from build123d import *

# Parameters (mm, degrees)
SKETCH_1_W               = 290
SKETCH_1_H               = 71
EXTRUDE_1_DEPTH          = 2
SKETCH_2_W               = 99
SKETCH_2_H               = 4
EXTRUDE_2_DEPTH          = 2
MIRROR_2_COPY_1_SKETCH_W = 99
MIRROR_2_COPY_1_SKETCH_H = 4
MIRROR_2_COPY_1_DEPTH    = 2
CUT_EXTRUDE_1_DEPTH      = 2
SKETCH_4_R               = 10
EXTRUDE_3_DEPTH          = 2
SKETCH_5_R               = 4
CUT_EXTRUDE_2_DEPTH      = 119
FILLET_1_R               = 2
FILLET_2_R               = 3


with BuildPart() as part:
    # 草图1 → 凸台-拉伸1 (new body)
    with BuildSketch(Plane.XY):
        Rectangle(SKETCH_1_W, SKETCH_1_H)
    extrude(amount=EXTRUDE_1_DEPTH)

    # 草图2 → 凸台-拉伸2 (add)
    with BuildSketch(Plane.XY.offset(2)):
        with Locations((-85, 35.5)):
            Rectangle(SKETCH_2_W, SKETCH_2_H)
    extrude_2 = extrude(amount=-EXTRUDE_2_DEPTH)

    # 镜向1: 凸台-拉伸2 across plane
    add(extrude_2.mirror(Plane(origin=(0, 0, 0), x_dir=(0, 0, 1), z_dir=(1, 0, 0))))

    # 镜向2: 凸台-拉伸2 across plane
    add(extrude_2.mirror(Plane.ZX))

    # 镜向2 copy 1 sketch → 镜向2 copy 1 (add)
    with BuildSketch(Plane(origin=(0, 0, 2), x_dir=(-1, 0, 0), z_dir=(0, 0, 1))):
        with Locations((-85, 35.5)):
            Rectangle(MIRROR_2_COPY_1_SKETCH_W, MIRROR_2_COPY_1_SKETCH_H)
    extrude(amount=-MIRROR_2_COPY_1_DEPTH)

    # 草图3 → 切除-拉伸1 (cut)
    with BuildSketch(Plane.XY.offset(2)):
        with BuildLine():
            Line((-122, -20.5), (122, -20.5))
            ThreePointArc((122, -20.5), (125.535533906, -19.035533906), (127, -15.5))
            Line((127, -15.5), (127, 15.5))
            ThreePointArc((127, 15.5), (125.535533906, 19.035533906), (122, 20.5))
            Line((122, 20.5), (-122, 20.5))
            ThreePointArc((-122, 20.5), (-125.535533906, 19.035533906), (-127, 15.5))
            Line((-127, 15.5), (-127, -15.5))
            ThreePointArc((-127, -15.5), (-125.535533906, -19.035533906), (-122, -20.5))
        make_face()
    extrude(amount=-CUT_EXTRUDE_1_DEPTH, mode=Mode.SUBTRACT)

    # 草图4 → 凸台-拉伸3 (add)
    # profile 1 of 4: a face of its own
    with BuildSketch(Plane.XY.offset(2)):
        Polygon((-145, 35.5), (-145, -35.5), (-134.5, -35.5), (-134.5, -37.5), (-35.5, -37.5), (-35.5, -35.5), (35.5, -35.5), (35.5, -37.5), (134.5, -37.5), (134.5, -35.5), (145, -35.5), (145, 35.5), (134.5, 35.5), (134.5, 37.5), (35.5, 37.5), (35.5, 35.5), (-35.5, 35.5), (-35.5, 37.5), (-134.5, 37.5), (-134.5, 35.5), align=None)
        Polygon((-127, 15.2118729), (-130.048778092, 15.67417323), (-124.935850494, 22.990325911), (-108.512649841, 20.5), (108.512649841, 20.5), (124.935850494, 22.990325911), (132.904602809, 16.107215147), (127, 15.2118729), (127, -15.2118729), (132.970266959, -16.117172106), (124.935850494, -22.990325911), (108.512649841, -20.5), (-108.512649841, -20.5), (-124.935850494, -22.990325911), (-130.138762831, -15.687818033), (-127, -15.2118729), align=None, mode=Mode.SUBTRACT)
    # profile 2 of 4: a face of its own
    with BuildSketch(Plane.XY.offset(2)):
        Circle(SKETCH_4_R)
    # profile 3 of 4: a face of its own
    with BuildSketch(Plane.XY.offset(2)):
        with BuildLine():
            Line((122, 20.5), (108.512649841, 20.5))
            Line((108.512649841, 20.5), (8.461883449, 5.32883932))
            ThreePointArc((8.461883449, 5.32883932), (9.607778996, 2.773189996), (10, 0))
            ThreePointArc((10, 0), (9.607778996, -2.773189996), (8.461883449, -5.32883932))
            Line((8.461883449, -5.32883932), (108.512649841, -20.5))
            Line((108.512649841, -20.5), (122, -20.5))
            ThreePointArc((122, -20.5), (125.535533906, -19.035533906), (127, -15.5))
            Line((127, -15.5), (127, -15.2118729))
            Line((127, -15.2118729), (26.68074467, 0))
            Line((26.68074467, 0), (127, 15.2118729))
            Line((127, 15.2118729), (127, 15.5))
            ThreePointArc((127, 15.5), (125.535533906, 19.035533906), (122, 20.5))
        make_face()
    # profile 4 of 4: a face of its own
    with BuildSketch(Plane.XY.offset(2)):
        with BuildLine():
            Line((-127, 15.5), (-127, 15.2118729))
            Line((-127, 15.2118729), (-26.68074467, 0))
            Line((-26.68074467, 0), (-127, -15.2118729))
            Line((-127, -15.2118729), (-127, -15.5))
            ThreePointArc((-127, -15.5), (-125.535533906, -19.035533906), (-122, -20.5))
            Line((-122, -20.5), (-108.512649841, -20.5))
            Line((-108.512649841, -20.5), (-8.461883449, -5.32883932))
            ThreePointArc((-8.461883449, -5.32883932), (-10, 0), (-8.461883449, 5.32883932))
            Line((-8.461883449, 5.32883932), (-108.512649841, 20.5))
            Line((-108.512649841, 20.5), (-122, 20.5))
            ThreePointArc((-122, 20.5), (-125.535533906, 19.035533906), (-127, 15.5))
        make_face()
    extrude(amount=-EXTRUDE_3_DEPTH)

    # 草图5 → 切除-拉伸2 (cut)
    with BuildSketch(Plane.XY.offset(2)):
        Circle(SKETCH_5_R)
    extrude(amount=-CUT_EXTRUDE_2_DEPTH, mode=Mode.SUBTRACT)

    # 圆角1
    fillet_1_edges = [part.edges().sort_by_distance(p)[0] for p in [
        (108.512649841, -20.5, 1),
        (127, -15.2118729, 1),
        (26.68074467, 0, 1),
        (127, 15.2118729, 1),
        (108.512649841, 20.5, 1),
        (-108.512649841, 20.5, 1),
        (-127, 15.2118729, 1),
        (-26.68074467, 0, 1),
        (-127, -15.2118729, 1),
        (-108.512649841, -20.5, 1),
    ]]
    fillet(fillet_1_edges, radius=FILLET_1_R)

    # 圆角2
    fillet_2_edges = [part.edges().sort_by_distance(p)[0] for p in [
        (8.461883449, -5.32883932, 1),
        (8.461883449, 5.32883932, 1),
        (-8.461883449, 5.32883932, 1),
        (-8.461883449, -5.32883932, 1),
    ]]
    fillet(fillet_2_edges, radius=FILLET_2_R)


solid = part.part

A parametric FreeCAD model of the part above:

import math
import FreeCAD as App
import Part
import Sketcher


def edges_at(feature, points):
    """Names of the edges that pass closest to the given points."""
    edges = feature.Shape.Edges
    near = lambda p: min(range(len(edges)), key=lambda i: edges[i].distToShape(Part.Vertex(*p))[0])
    return sorted({f"Edge{near(p) + 1}" for p in points})


def add_polygon(sketch, points):
    """Adds a closed chain of lines whose ends are joined by coincident constraints."""
    first, n = sketch.GeometryCount, len(points)
    for a, b in zip(points, points[1:] + points[:1]):
        sketch.addGeometry(Part.LineSegment(App.Vector(*a, 0), App.Vector(*b, 0)), False)
    for i in range(n):
        sketch.addConstraint(Sketcher.Constraint("Coincident", first + i, 2, first + (i + 1) % n, 1))

doc = App.newDocument("Part")
body = doc.addObject("PartDesign::Body", "Body")

sketch1 = body.newObject("Sketcher::SketchObject", "Sketch")
sketch1.AttachmentSupport = (doc.getObject("XY_Plane"), [""])
sketch1.MapMode = "FlatFace"
add_polygon(sketch1, [(-145, 35.5), (-145, -35.5), (145, -35.5), (145, 35.5)])
sketch1.addConstraint(Sketcher.Constraint("Vertical", 0))
sketch1.addConstraint(Sketcher.Constraint("Horizontal", 1))
sketch1.addConstraint(Sketcher.Constraint("Vertical", 2))
sketch1.addConstraint(Sketcher.Constraint("Horizontal", 3))
sketch1.addConstraint(Sketcher.Constraint("Symmetric", 0, 2, 2, 2, -1, 1))
sketch1.addConstraint(Sketcher.Constraint("DistanceX", 1, 1, 1, 2, 290.0))
sketch1.addConstraint(Sketcher.Constraint("DistanceY", 0, 2, 0, 1, 71.0))
pad1 = body.newObject("PartDesign::Pad", "Pad")
pad1.Profile = sketch1
pad1.Length = 2

sketch2 = body.newObject("Sketcher::SketchObject", "Sketch001")
sketch2.AttachmentSupport = (doc.getObject("XY_Plane"), [""])
sketch2.MapMode = "FlatFace"
sketch2.AttachmentOffset = App.Placement(App.Vector(0, 0, 2), App.Rotation())
add_polygon(sketch2, [(-134.5, 37.5), (-134.5, 33.5), (-35.5, 33.5), (-35.5, 37.5)])
sketch2.addConstraint(Sketcher.Constraint("Vertical", 0))
sketch2.addConstraint(Sketcher.Constraint("Horizontal", 1))
sketch2.addConstraint(Sketcher.Constraint("Vertical", 2))
sketch2.addConstraint(Sketcher.Constraint("Horizontal", 3))
sketch2.addConstraint(Sketcher.Constraint("DistanceX", 1, 1, 1, 2, 99.0))
sketch2.addConstraint(Sketcher.Constraint("DistanceY", 0, 2, 0, 1, 4.0))
sketch2.addConstraint(Sketcher.Constraint("DistanceX", 0, 2, -1, 1, 134.5))
sketch2.addConstraint(Sketcher.Constraint("DistanceY", -1, 1, 0, 2, 33.5))
pad2 = body.newObject("PartDesign::Pad", "Pad001")
pad2.Profile = sketch2
pad2.Length = 2
pad2.Reversed = True
doc.recompute()

mirrored = body.newObject("PartDesign::Mirrored", "Mirrored")
mirrored.Originals = [pad2]
mirrored.MirrorPlane = (doc.getObject("YZ_Plane"), [""])
body.Tip = mirrored
doc.recompute()

mirrored2 = body.newObject("PartDesign::Mirrored", "Mirrored001")
mirrored2.Originals = [pad2]
mirrored2.MirrorPlane = (doc.getObject("XZ_Plane"), [""])
body.Tip = mirrored2

sketch3 = body.newObject("Sketcher::SketchObject", "Sketch002")
sketch3.AttachmentSupport = (doc.getObject("XY_Plane"), [""])
sketch3.MapMode = "FlatFace"
sketch3.AttachmentOffset = App.Placement(App.Vector(0, 0, 2), App.Rotation())
add_polygon(sketch3, [(134.5, -37.5), (134.5, -33.5), (35.5, -33.5), (35.5, -37.5)])
sketch3.addConstraint(Sketcher.Constraint("Vertical", 0))
sketch3.addConstraint(Sketcher.Constraint("Horizontal", 1))
sketch3.addConstraint(Sketcher.Constraint("Vertical", 2))
sketch3.addConstraint(Sketcher.Constraint("Horizontal", 3))
sketch3.addConstraint(Sketcher.Constraint("DistanceX", 1, 2, 1, 1, 99.0))
sketch3.addConstraint(Sketcher.Constraint("DistanceY", 0, 1, 0, 2, 4.0))
sketch3.addConstraint(Sketcher.Constraint("DistanceX", -1, 1, 0, 2, 134.5))
sketch3.addConstraint(Sketcher.Constraint("DistanceY", 0, 2, -1, 1, 33.5))
pad3 = body.newObject("PartDesign::Pad", "Pad002")
pad3.Profile = sketch3
pad3.Length = 2
pad3.Reversed = True

sketch4 = body.newObject("Sketcher::SketchObject", "Sketch003")
sketch4.AttachmentSupport = (doc.getObject("XY_Plane"), [""])
sketch4.MapMode = "FlatFace"
sketch4.AttachmentOffset = App.Placement(App.Vector(0, 0, 2), App.Rotation())
sketch4.addGeometry(Part.LineSegment(App.Vector(-122, -20.5, 0), App.Vector(122, -20.5, 0)), False)
sketch4.addGeometry(Part.ArcOfCircle(Part.Circle(App.Vector(122, -15.5, 0), App.Vector(0, 0, 1), 5), math.radians(-90), math.radians(0)), False)
sketch4.addGeometry(Part.LineSegment(App.Vector(127, -15.5, 0), App.Vector(127, 15.5, 0)), False)
sketch4.addGeometry(Part.ArcOfCircle(Part.Circle(App.Vector(122, 15.5, 0), App.Vector(0, 0, 1), 5), math.radians(0), math.radians(90)), False)
sketch4.addGeometry(Part.LineSegment(App.Vector(122, 20.5, 0), App.Vector(-122, 20.5, 0)), False)
sketch4.addGeometry(Part.ArcOfCircle(Part.Circle(App.Vector(-122, 15.5, 0), App.Vector(0, 0, 1), 5), math.radians(90), math.radians(180)), False)
sketch4.addGeometry(Part.LineSegment(App.Vector(-127, 15.5, 0), App.Vector(-127, -15.5, 0)), False)
sketch4.addGeometry(Part.ArcOfCircle(Part.Circle(App.Vector(-122, -15.5, 0), App.Vector(0, 0, 1), 5), math.radians(180), math.radians(270)), False)
sketch4.addConstraint(Sketcher.Constraint("Tangent", 0, 2, 1, 1))
sketch4.addConstraint(Sketcher.Constraint("Tangent", 1, 2, 2, 1))
sketch4.addConstraint(Sketcher.Constraint("Tangent", 2, 2, 3, 1))
sketch4.addConstraint(Sketcher.Constraint("Tangent", 3, 2, 4, 1))
sketch4.addConstraint(Sketcher.Constraint("Tangent", 4, 2, 5, 1))
sketch4.addConstraint(Sketcher.Constraint("Tangent", 5, 2, 6, 1))
sketch4.addConstraint(Sketcher.Constraint("Tangent", 6, 2, 7, 1))
sketch4.addConstraint(Sketcher.Constraint("Tangent", 7, 2, 0, 1))
sketch4.addConstraint(Sketcher.Constraint("Horizontal", 0))
sketch4.addConstraint(Sketcher.Constraint("Vertical", 2))
sketch4.addConstraint(Sketcher.Constraint("Horizontal", 4))
sketch4.addConstraint(Sketcher.Constraint("Vertical", 6))
sketch4.addConstraint(Sketcher.Constraint("Equal", 1, 3))
sketch4.addConstraint(Sketcher.Constraint("Equal", 3, 5))
sketch4.addConstraint(Sketcher.Constraint("Equal", 5, 7))
sketch4.addConstraint(Sketcher.Constraint("Symmetric", 1, 3, 5, 3, -1, 1))
sketch4.addConstraint(Sketcher.Constraint("Radius", 1, 5.0))
sketch4.addConstraint(Sketcher.Constraint("DistanceX", 0, 1, 0, 2, 244.0))
sketch4.addConstraint(Sketcher.Constraint("DistanceY", 2, 1, 2, 2, 31.0))
pocket1 = body.newObject("PartDesign::Pocket", "Pocket")
pocket1.Profile = sketch4
pocket1.Length = 2

sketch5 = body.newObject("Sketcher::SketchObject", "Sketch004")
sketch5.AttachmentSupport = (doc.getObject("XY_Plane"), [""])
sketch5.MapMode = "FlatFace"
sketch5.AttachmentOffset = App.Placement(App.Vector(0, 0, 2), App.Rotation())
add_polygon(sketch5, [(-145, 35.5), (-145, -35.5), (-134.5, -35.5), (-134.5, -37.5), (-35.5, -37.5), (-35.5, -35.5), (35.5, -35.5), (35.5, -37.5), (134.5, -37.5), (134.5, -35.5), (145, -35.5), (145, 35.5), (134.5, 35.5), (134.5, 37.5), (35.5, 37.5), (35.5, 35.5), (-35.5, 35.5), (-35.5, 37.5), (-134.5, 37.5), (-134.5, 35.5)])
add_polygon(sketch5, [(-127, -15.211873), (-127, 15.211873), (-130.048778, 15.674173), (-124.93585, 22.990326), (-108.51265, 20.5), (108.51265, 20.5), (124.93585, 22.990326), (132.904603, 16.107215), (127, 15.211873), (127, -15.211873), (132.970267, -16.117172), (124.93585, -22.990326), (108.51265, -20.5), (-108.51265, -20.5), (-124.93585, -22.990326), (-130.138763, -15.687818)])
sketch5.addGeometry(Part.ArcOfCircle(Part.Circle(App.Vector(0, 0, 0), App.Vector(0, 0, 1), 10), math.radians(32.200518), math.radians(147.799482)), False)
sketch5.addGeometry(Part.LineSegment(App.Vector(-8.461883, 5.328839, 0), App.Vector(-108.51265, 20.5, 0)), False)
sketch5.addGeometry(Part.LineSegment(App.Vector(-108.51265, 20.5, 0), App.Vector(-122, 20.5, 0)), False)
sketch5.addGeometry(Part.ArcOfCircle(Part.Circle(App.Vector(-122, 15.5, 0), App.Vector(0, 0, 1), 5), math.radians(90), math.radians(180)), False)
sketch5.addGeometry(Part.LineSegment(App.Vector(-127, 15.5, 0), App.Vector(-127, 15.211873, 0)), False)
sketch5.addGeometry(Part.LineSegment(App.Vector(-127, 15.211873, 0), App.Vector(-26.680745, 0, 0)), False)
sketch5.addGeometry(Part.LineSegment(App.Vector(-26.680745, 0, 0), App.Vector(-127, -15.211873, 0)), False)
sketch5.addGeometry(Part.LineSegment(App.Vector(-127, -15.211873, 0), App.Vector(-127, -15.5, 0)), False)
sketch5.addGeometry(Part.ArcOfCircle(Part.Circle(App.Vector(-122, -15.5, 0), App.Vector(0, 0, 1), 5), math.radians(180), math.radians(270)), False)
sketch5.addGeometry(Part.LineSegment(App.Vector(-122, -20.5, 0), App.Vector(-108.51265, -20.5, 0)), False)
sketch5.addGeometry(Part.LineSegment(App.Vector(-108.51265, -20.5, 0), App.Vector(-8.461883, -5.328839, 0)), False)
sketch5.addGeometry(Part.ArcOfCircle(Part.Circle(App.Vector(0, 0, 0), App.Vector(0, 0, 1), 10), math.radians(-147.799482), math.radians(-32.200518)), False)
sketch5.addGeometry(Part.LineSegment(App.Vector(8.461883, -5.328839, 0), App.Vector(108.51265, -20.5, 0)), False)
sketch5.addGeometry(Part.LineSegment(App.Vector(108.51265, -20.5, 0), App.Vector(122, -20.5, 0)), False)
sketch5.addGeometry(Part.ArcOfCircle(Part.Circle(App.Vector(122, -15.5, 0), App.Vector(0, 0, 1), 5), math.radians(-90), math.radians(0)), False)
sketch5.addGeometry(Part.LineSegment(App.Vector(127, -15.5, 0), App.Vector(127, -15.211873, 0)), False)
sketch5.addGeometry(Part.LineSegment(App.Vector(127, -15.211873, 0), App.Vector(26.680745, 0, 0)), False)
sketch5.addGeometry(Part.LineSegment(App.Vector(26.680745, 0, 0), App.Vector(127, 15.211873, 0)), False)
sketch5.addGeometry(Part.LineSegment(App.Vector(127, 15.211873, 0), App.Vector(127, 15.5, 0)), False)
sketch5.addGeometry(Part.ArcOfCircle(Part.Circle(App.Vector(122, 15.5, 0), App.Vector(0, 0, 1), 5), math.radians(0), math.radians(90)), False)
sketch5.addGeometry(Part.LineSegment(App.Vector(122, 20.5, 0), App.Vector(108.51265, 20.5, 0)), False)
sketch5.addGeometry(Part.LineSegment(App.Vector(108.51265, 20.5, 0), App.Vector(8.461883, 5.328839, 0)), False)
sketch5.addConstraint(Sketcher.Constraint("Coincident", 36, 2, 37, 1))
sketch5.addConstraint(Sketcher.Constraint("Coincident", 37, 2, 38, 1))
sketch5.addConstraint(Sketcher.Constraint("Tangent", 38, 2, 39, 1))
sketch5.addConstraint(Sketcher.Constraint("Tangent", 39, 2, 40, 1))
sketch5.addConstraint(Sketcher.Constraint("Coincident", 40, 2, 41, 1))
sketch5.addConstraint(Sketcher.Constraint("Coincident", 41, 2, 42, 1))
sketch5.addConstraint(Sketcher.Constraint("Coincident", 42, 2, 43, 1))
sketch5.addConstraint(Sketcher.Constraint("Tangent", 43, 2, 44, 1))
sketch5.addConstraint(Sketcher.Constraint("Tangent", 44, 2, 45, 1))
sketch5.addConstraint(Sketcher.Constraint("Coincident", 45, 2, 46, 1))
sketch5.addConstraint(Sketcher.Constraint("Coincident", 46, 2, 47, 1))
sketch5.addConstraint(Sketcher.Constraint("Coincident", 47, 2, 48, 1))
sketch5.addConstraint(Sketcher.Constraint("Coincident", 48, 2, 49, 1))
sketch5.addConstraint(Sketcher.Constraint("Tangent", 49, 2, 50, 1))
sketch5.addConstraint(Sketcher.Constraint("Tangent", 50, 2, 51, 1))
sketch5.addConstraint(Sketcher.Constraint("Coincident", 51, 2, 52, 1))
sketch5.addConstraint(Sketcher.Constraint("Coincident", 52, 2, 53, 1))
sketch5.addConstraint(Sketcher.Constraint("Coincident", 53, 2, 54, 1))
sketch5.addConstraint(Sketcher.Constraint("Tangent", 54, 2, 55, 1))
sketch5.addConstraint(Sketcher.Constraint("Tangent", 55, 2, 56, 1))
sketch5.addConstraint(Sketcher.Constraint("Coincident", 56, 2, 57, 1))
sketch5.addConstraint(Sketcher.Constraint("Coincident", 57, 2, 36, 1))
sketch5.addConstraint(Sketcher.Constraint("Vertical", 0))
sketch5.addConstraint(Sketcher.Constraint("Horizontal", 1))
sketch5.addConstraint(Sketcher.Constraint("Vertical", 2))
sketch5.addConstraint(Sketcher.Constraint("Horizontal", 3))
sketch5.addConstraint(Sketcher.Constraint("Vertical", 4))
sketch5.addConstraint(Sketcher.Constraint("Horizontal", 5))
sketch5.addConstraint(Sketcher.Constraint("Vertical", 6))
sketch5.addConstraint(Sketcher.Constraint("Horizontal", 7))
sketch5.addConstraint(Sketcher.Constraint("Vertical", 8))
sketch5.addConstraint(Sketcher.Constraint("Horizontal", 9))
sketch5.addConstraint(Sketcher.Constraint("Vertical", 10))
sketch5.addConstraint(Sketcher.Constraint("Horizontal", 11))
sketch5.addConstraint(Sketcher.Constraint("Vertical", 12))
sketch5.addConstraint(Sketcher.Constraint("Horizontal", 13))
sketch5.addConstraint(Sketcher.Constraint("Vertical", 14))
sketch5.addConstraint(Sketcher.Constraint("Horizontal", 15))
sketch5.addConstraint(Sketcher.Constraint("Vertical", 16))
sketch5.addConstraint(Sketcher.Constraint("Horizontal", 17))
sketch5.addConstraint(Sketcher.Constraint("Vertical", 18))
sketch5.addConstraint(Sketcher.Constraint("Horizontal", 19))
sketch5.addConstraint(Sketcher.Constraint("Vertical", 20))
sketch5.addConstraint(Sketcher.Constraint("Horizontal", 24))
sketch5.addConstraint(Sketcher.Constraint("Vertical", 28))
sketch5.addConstraint(Sketcher.Constraint("Horizontal", 32))
sketch5.addConstraint(Sketcher.Constraint("Horizontal", 38))
sketch5.addConstraint(Sketcher.Constraint("Vertical", 40))
sketch5.addConstraint(Sketcher.Constraint("Vertical", 43))
sketch5.addConstraint(Sketcher.Constraint("Horizontal", 45))
sketch5.addConstraint(Sketcher.Constraint("Horizontal", 49))
sketch5.addConstraint(Sketcher.Constraint("Vertical", 51))
sketch5.addConstraint(Sketcher.Constraint("Vertical", 54))
sketch5.addConstraint(Sketcher.Constraint("Horizontal", 56))
sketch5.addConstraint(Sketcher.Constraint("Coincident", 36, 3, -1, 1))
sketch5.addConstraint(Sketcher.Constraint("Coincident", 47, 3, -1, 1))
sketch5.addConstraint(Sketcher.Constraint("Coincident", 37, 2, 23, 2))
sketch5.addConstraint(Sketcher.Constraint("Coincident", 40, 2, 20, 2))
sketch5.addConstraint(Sketcher.Constraint("Coincident", 42, 2, 35, 2))
sketch5.addConstraint(Sketcher.Constraint("Coincident", 45, 2, 32, 2))
sketch5.addConstraint(Sketcher.Constraint("Coincident", 48, 2, 31, 2))
sketch5.addConstraint(Sketcher.Constraint("Coincident", 51, 2, 28, 2))
sketch5.addConstraint(Sketcher.Constraint("Coincident", 53, 2, 27, 2))
sketch5.addConstraint(Sketcher.Constraint("Coincident", 56, 2, 24, 2))
sketch5.addConstraint(Sketcher.Constraint("Equal", 39, 44))
sketch5.addConstraint(Sketcher.Constraint("Equal", 36, 47))
sketch5.addConstraint(Sketcher.Constraint("Equal", 44, 50))
sketch5.addConstraint(Sketcher.Constraint("Equal", 50, 55))
sketch5.addConstraint(Sketcher.Constraint("Symmetric", 39, 3, 50, 3, -1, 1))
sketch5.addConstraint(Sketcher.Constraint("Symmetric", 0, 2, 10, 2, -1, 1))
sketch5.addConstraint(Sketcher.Constraint("Symmetric", 2, 2, 12, 2, -1, 1))
sketch5.addConstraint(Sketcher.Constraint("Symmetric", 4, 2, 14, 2, -1, 1))
sketch5.addConstraint(Sketcher.Constraint("Symmetric", 6, 2, 16, 2, -1, 1))
sketch5.addConstraint(Sketcher.Constraint("Symmetric", 8, 2, 18, 2, -1, 1))
sketch5.addConstraint(Sketcher.Constraint("Symmetric", 22, 2, 30, 2, -1, 1))
sketch5.addConstraint(Sketcher.Constraint("Symmetric", 25, 2, 33, 2, -1, 1))
sketch5.addConstraint(Sketcher.Constraint("Symmetric", 41, 2, 52, 2, -1, 1))
sketch5.addConstraint(Sketcher.Constraint("Symmetric", 3, 2, 6, 2, -2))
sketch5.addConstraint(Sketcher.Constraint("Symmetric", 1, 2, 8, 2, -2))
sketch5.addConstraint(Sketcher.Constraint("Symmetric", 22, 2, 25, 2, -2))
sketch5.addConstraint(Sketcher.Constraint("PointOnObject", 41, 2, -1))
sketch5.addConstraint(Sketcher.Constraint("Parallel", 21, 23))
sketch5.addConstraint(Sketcher.Constraint("Parallel", 25, 27))
sketch5.addConstraint(Sketcher.Constraint("Parallel", 23, 29))
sketch5.addConstraint(Sketcher.Constraint("Parallel", 29, 31))
sketch5.addConstraint(Sketcher.Constraint("Parallel", 27, 33))
sketch5.addConstraint(Sketcher.Constraint("Parallel", 33, 35))
sketch5.addConstraint(Sketcher.Constraint("Parallel", 31, 37))
sketch5.addConstraint(Sketcher.Constraint("Parallel", 37, 41))
sketch5.addConstraint(Sketcher.Constraint("Parallel", 35, 42))
sketch5.addConstraint(Sketcher.Constraint("Parallel", 42, 46))
sketch5.addConstraint(Sketcher.Constraint("Parallel", 41, 48))
sketch5.addConstraint(Sketcher.Constraint("Parallel", 48, 52))
sketch5.addConstraint(Sketcher.Constraint("Parallel", 46, 53))
sketch5.addConstraint(Sketcher.Constraint("Parallel", 53, 57))
sketch5.addConstraint(Sketcher.Constraint("Horizontal", 1, 2, 4, 2))
sketch5.addConstraint(Sketcher.Constraint("Horizontal", 20, 2, 27, 2))
sketch5.addConstraint(Sketcher.Constraint("Equal", 15, 0))
sketch5.addConstraint(Sketcher.Constraint("Radius", 36, 10.0))
sketch5.addConstraint(Sketcher.Constraint("Radius", 39, 5.0))
sketch5.addConstraint(Sketcher.Constraint("DistanceX", 3, 1, 3, 2, 99.0))
sketch5.addConstraint(Sketcher.Constraint("DistanceX", 5, 1, 5, 2, 71.0))
sketch5.addConstraint(Sketcher.Constraint("DistanceY", 2, 2, 2, 1, 2.0))
sketch5.addConstraint(Sketcher.Constraint("DistanceX", 1, 1, 1, 2, 10.5))
sketch5.addConstraint(Sketcher.Constraint("DistanceX", 39, 3, -1, 1, 122.0))
sketch5.addConstraint(Sketcher.Constraint("DistanceY", -1, 1, 39, 3, 15.5))
sketch5.addConstraint(Sketcher.Constraint("DistanceX", 24, 1, 24, 2, 217.0253))
sketch5.addConstraint(Sketcher.Constraint("Distance", 22, 8.9257))
sketch5.addConstraint(Sketcher.Constraint("Distance", 27, 5.972099))
sketch5.addConstraint(Sketcher.Constraint("Distance", 21, 3.083629))
sketch5.addConstraint(Sketcher.Constraint("DistanceY", 20, 1, 20, 2, 30.423746))
sketch5.addConstraint(Sketcher.Constraint("DistanceX", 22, 2, -1, 1, 124.93585))
sketch5.addConstraint(Sketcher.Constraint("DistanceY", 34, 2, -1, 1, 15.687818))
sketch5.addConstraint(Sketcher.Constraint("Distance", 29, 6.038514))
pad4 = body.newObject("PartDesign::Pad", "Pad003")
pad4.Profile = sketch5
pad4.Length = 2
pad4.Reversed = True

sketch6 = body.newObject("Sketcher::SketchObject", "Sketch005")
sketch6.AttachmentSupport = (doc.getObject("XY_Plane"), [""])
sketch6.MapMode = "FlatFace"
sketch6.AttachmentOffset = App.Placement(App.Vector(0, 0, 2), App.Rotation())
sketch6.addGeometry(Part.Circle(App.Vector(0, 0, 0), App.Vector(0, 0, 1), 4), False)
sketch6.addConstraint(Sketcher.Constraint("Coincident", 0, 3, -1, 1))
sketch6.addConstraint(Sketcher.Constraint("Diameter", 0, 8.0))
pocket2 = body.newObject("PartDesign::Pocket", "Pocket001")
pocket2.Profile = sketch6
pocket2.Length = 119
doc.recompute()

fillet = body.newObject("PartDesign::Fillet", "Fillet")
fillet.Base = (pocket2, edges_at(pocket2, [
    (108.513, -20.5, 1),
    (127, -15.212, 1),
    (26.681, 0, 1),
    (127, 15.212, 1),
    (108.513, 20.5, 1),
    (-108.513, 20.5, 1),
    (-127, 15.212, 1),
    (-26.681, 0, 1),
    (-127, -15.212, 1),
    (-108.513, -20.5, 1),
]))
fillet.Radius = 2
doc.recompute()

fillet2 = body.newObject("PartDesign::Fillet", "Fillet001")
fillet2.Base = (fillet, edges_at(fillet, [
    (8.462, -5.329, 1),
    (8.462, 5.329, 1),
    (-8.462, 5.329, 1),
    (-8.462, -5.329, 1),
]))
fillet2.Radius = 3

doc.recompute()
